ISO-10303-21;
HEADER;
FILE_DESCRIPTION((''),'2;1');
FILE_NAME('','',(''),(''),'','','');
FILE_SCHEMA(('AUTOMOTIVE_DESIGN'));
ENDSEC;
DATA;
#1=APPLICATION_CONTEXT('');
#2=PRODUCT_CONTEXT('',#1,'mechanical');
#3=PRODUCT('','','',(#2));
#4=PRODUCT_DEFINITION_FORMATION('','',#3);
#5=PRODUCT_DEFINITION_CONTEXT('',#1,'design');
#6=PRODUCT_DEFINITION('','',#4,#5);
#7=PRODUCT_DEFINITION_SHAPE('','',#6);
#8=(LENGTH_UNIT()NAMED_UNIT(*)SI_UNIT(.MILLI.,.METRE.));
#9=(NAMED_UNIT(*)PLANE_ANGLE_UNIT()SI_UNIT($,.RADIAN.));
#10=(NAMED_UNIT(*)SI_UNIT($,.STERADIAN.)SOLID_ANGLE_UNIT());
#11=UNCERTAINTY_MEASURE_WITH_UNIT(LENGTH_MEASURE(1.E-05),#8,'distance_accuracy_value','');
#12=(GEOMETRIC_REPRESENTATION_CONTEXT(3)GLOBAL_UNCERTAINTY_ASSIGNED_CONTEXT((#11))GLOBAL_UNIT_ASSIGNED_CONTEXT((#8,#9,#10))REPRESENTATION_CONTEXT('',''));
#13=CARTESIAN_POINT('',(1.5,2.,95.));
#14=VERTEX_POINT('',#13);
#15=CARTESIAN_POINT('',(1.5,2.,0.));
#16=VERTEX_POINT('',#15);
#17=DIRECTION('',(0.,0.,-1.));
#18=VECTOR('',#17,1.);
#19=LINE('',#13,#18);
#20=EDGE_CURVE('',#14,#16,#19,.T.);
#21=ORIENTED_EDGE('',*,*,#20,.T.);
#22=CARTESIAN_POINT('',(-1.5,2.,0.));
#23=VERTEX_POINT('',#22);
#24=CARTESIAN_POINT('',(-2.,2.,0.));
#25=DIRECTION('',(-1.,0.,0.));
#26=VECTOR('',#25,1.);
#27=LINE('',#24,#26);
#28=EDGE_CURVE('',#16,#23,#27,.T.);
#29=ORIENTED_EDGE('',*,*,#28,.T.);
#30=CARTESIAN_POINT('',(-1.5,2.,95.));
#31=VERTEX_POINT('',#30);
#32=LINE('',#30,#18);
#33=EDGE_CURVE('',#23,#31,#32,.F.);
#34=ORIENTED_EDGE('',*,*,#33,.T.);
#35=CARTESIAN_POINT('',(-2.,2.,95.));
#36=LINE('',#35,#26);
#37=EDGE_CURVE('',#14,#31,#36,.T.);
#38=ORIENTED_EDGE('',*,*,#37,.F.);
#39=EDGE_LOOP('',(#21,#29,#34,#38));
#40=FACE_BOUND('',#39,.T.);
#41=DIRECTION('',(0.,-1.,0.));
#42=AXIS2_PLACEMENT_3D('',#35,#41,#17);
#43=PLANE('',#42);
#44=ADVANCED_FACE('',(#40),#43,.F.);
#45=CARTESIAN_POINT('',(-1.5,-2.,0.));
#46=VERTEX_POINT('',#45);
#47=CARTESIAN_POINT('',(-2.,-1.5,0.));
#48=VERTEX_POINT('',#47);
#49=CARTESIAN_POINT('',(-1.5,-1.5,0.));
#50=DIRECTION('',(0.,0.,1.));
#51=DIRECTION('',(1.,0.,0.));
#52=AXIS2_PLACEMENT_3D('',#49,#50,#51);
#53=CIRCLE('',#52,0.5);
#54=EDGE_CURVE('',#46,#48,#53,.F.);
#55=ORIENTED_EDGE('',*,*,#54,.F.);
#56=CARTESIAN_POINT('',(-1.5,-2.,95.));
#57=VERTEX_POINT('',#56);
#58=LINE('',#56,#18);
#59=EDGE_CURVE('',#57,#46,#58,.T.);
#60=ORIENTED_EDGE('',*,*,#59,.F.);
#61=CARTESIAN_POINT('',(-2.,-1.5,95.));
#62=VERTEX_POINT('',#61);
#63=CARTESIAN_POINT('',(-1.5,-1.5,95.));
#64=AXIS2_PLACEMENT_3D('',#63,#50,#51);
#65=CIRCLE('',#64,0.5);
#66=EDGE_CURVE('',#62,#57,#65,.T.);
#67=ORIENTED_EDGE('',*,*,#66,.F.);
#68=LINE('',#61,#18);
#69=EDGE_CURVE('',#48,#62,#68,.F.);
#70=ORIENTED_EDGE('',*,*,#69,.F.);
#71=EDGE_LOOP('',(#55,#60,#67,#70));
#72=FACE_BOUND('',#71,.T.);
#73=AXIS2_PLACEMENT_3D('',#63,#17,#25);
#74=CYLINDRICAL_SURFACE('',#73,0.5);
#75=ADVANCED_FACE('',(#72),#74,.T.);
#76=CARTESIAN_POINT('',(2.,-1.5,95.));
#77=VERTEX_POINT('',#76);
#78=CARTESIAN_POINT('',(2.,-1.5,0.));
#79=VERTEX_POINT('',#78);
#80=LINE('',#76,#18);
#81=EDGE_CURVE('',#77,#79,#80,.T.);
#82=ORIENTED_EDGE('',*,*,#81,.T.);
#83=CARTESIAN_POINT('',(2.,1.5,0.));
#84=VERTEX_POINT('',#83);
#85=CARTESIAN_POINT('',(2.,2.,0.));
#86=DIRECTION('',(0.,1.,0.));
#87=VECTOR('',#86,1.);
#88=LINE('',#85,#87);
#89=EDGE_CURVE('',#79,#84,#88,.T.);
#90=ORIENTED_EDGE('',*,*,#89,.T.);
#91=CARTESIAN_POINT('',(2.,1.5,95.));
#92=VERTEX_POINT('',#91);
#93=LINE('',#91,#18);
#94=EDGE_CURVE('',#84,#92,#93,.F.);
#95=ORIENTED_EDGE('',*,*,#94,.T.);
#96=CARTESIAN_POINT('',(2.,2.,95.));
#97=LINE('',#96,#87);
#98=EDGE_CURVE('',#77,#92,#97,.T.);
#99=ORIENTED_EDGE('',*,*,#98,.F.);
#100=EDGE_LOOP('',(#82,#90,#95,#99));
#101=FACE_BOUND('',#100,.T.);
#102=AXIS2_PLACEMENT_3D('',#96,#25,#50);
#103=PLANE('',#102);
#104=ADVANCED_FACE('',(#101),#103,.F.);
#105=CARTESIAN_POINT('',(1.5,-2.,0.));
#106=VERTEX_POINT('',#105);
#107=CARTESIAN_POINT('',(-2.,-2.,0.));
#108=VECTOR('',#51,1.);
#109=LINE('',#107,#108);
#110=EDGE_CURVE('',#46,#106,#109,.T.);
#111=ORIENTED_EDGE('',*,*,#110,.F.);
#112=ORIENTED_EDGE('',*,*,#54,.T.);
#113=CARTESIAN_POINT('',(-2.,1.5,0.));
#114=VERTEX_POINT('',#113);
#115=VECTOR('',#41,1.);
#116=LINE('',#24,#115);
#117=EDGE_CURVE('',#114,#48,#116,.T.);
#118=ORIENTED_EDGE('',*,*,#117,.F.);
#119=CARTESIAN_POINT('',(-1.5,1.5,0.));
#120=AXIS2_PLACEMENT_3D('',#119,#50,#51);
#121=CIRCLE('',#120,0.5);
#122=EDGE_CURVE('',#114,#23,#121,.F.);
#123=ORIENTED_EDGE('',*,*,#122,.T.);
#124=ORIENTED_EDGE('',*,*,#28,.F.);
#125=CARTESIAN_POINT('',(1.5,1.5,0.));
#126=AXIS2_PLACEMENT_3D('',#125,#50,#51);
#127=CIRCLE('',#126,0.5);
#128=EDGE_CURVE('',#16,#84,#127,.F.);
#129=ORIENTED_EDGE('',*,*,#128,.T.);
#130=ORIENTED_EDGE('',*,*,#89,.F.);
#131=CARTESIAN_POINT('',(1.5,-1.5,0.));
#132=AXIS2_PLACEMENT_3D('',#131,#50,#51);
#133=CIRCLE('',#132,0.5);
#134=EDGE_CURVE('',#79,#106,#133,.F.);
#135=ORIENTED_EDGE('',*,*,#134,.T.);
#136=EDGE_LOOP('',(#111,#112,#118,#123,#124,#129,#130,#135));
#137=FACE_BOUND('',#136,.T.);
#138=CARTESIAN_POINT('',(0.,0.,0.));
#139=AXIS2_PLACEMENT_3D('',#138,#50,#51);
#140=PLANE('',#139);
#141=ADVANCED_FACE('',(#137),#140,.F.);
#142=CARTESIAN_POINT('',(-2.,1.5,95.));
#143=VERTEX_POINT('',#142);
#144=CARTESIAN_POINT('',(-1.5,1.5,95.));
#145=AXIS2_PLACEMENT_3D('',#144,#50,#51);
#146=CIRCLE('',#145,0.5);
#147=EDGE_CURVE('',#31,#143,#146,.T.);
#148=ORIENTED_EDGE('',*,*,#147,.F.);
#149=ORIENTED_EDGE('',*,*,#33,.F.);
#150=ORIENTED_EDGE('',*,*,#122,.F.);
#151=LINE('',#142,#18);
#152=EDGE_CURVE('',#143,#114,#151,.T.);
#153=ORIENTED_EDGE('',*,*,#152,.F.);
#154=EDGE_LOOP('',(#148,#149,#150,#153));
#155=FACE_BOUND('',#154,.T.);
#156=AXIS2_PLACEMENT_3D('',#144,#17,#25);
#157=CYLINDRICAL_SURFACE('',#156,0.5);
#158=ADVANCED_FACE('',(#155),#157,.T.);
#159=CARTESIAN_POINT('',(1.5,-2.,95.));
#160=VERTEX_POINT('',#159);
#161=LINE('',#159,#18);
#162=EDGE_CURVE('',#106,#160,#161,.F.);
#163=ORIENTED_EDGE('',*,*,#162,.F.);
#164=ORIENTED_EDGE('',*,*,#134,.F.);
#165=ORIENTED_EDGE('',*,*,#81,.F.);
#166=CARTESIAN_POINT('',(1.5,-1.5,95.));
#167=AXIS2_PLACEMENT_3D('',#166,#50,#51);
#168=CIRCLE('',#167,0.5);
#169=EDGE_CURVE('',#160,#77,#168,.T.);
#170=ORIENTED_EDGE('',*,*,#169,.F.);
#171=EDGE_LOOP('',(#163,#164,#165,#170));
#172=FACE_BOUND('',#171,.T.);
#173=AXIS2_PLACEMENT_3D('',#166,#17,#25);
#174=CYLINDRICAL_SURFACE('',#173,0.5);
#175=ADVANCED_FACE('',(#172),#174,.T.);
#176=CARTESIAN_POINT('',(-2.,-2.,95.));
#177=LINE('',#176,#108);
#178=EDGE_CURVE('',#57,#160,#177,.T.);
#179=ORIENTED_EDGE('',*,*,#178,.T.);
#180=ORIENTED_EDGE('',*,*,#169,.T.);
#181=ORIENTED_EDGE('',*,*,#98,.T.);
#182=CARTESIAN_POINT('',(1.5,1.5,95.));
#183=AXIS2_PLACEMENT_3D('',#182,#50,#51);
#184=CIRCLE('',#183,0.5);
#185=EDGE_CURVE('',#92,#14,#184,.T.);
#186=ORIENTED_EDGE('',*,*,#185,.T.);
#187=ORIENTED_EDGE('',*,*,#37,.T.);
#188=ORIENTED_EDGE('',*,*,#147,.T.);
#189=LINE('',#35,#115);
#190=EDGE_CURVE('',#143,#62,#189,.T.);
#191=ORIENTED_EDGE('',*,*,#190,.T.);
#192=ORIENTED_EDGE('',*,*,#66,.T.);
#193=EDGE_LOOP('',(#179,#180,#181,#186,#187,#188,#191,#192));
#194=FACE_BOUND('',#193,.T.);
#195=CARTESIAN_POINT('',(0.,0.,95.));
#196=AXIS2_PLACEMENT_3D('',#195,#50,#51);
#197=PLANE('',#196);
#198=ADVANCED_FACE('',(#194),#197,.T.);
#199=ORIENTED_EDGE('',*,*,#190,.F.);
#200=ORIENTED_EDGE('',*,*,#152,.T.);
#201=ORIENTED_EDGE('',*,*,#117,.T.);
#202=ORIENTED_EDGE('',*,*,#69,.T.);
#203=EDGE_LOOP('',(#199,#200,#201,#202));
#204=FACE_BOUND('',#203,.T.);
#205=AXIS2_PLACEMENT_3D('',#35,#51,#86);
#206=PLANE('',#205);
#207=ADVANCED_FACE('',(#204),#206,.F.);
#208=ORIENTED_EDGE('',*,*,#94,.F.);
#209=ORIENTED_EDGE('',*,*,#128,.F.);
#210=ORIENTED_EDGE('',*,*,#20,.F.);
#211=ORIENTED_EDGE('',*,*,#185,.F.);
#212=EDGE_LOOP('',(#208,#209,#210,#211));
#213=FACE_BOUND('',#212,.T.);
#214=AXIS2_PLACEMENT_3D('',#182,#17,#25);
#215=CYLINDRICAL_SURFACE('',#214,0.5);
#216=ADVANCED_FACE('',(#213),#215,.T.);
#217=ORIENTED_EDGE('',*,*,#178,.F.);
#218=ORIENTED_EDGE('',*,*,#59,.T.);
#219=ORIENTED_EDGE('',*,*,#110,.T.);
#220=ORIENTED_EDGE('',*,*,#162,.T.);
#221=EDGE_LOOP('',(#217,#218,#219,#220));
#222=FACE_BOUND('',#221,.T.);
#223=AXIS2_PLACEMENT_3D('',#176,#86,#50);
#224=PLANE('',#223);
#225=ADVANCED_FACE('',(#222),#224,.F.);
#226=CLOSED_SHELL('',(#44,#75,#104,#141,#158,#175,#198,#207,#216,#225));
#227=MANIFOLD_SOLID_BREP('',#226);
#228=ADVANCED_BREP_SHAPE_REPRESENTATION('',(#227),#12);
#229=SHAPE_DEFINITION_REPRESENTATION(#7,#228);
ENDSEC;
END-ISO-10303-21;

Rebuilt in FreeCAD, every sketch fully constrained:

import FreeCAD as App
import Part
import Sketcher

V = App.Vector


def edges_at(feature, points):
    """Names of the edges that pass closest to the given points."""
    edges = feature.Shape.Edges
    near = lambda p: min(range(len(edges)), key=lambda i: edges[i].distToShape(Part.Vertex(*p))[0])
    return sorted({f"Edge{near(p) + 1}" for p in points})

doc = App.newDocument("Part")
body = doc.addObject("PartDesign::Body", "Body")

sketch1 = body.newObject("Sketcher::SketchObject", "Sketch")
sketch1.AttachmentSupport = (doc.getObject("XY_Plane"), [""])
sketch1.MapMode = "FlatFace"
sketch1.addGeometry([
    Part.LineSegment(V(-2, 2, 0), V(-2, -2, 0)),
    Part.LineSegment(V(-2, -2, 0), V(2, -2, 0)),
    Part.LineSegment(V(2, -2, 0), V(2, 2, 0)),
    Part.LineSegment(V(2, 2, 0), V(-2, 2, 0)),
], False)
sketch1.addConstraint([
    Sketcher.Constraint("Coincident", 0, 2, 1, 1),
    Sketcher.Constraint("Coincident", 1, 2, 2, 1),
    Sketcher.Constraint("Coincident", 2, 2, 3, 1),
    Sketcher.Constraint("Coincident", 3, 2, 0, 1),
    Sketcher.Constraint("Vertical", 0),
    Sketcher.Constraint("Horizontal", 1),
    Sketcher.Constraint("Vertical", 2),
    Sketcher.Constraint("Horizontal", 3),
    Sketcher.Constraint("Symmetric", 0, 2, 2, 2, -1, 1),
    Sketcher.Constraint("Equal", 3, 0),
    Sketcher.Constraint("DistanceX", 1, 1, 1, 2, 4.0),
])
pad1 = body.newObject("PartDesign::Pad", "Pad")
pad1.Profile = sketch1
pad1.Length = 95
doc.recompute()

fillet = body.newObject("PartDesign::Fillet", "Fillet")
fillet.Base = (pad1, edges_at(pad1, [
    (-2, 2, 47.5),
    (2, 2, 47.5),
    (2, -2, 47.5),
    (-2, -2, 47.5),
]))
fillet.Radius = 0.5

doc.recompute()
